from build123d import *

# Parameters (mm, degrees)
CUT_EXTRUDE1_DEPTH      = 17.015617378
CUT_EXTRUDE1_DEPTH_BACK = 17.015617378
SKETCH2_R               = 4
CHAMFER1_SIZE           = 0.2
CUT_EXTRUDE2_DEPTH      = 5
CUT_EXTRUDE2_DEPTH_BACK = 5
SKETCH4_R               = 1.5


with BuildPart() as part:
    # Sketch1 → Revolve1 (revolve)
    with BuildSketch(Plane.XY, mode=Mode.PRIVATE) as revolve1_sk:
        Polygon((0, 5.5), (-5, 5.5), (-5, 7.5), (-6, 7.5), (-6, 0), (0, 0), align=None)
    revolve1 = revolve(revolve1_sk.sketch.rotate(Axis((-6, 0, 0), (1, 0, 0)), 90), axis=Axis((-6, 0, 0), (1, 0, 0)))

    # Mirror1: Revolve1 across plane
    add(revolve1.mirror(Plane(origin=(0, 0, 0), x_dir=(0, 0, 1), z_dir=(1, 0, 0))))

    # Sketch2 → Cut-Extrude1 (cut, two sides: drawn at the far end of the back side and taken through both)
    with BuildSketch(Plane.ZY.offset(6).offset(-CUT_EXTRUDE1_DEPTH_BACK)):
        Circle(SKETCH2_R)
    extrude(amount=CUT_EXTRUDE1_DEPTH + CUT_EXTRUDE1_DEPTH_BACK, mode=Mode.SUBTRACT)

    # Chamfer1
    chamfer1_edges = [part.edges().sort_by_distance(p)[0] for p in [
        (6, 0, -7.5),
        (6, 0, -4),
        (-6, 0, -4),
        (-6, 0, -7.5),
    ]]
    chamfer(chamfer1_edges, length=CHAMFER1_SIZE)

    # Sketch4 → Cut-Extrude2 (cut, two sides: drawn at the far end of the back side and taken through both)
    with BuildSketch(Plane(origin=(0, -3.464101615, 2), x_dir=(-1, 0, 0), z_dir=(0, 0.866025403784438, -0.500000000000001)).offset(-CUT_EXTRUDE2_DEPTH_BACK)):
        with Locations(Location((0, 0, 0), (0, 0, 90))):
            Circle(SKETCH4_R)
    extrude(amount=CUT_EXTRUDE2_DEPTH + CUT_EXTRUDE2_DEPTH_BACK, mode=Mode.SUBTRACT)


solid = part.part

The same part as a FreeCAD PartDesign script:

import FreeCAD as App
import Part
import Sketcher
from FreeCAD import Vector
Q = App.Units.Quantity


def edges_at(feature, points):
    """Names of the edges that pass closest to the given points."""
    edges = feature.Shape.Edges
    near = lambda p: min(range(len(edges)), key=lambda i: edges[i].distToShape(Part.Vertex(*p))[0])
    return sorted({f"Edge{near(p) + 1}" for p in points})

doc = App.newDocument("Part")
body = doc.addObject("PartDesign::Body", "Body")

# Sketch on XY plane
sketch1 = doc.addObject("Sketcher::SketchObject", "Sketch")
body.addObject(sketch1)
sketch1.AttachmentSupport = (doc.XY_Plane, [""])
sketch1.MapMode = "FlatFace"
sketch1.addGeometry([
    Part.LineSegment(Vector(0, 5.5, 0), Vector(-5, 5.5, 0)),  # 0
    Part.LineSegment(Vector(-5, 5.5, 0), Vector(-5, 7.5, 0)),  # 1
    Part.LineSegment(Vector(-5, 7.5, 0), Vector(-6, 7.5, 0)),  # 2
    Part.LineSegment(Vector(-6, 7.5, 0), Vector(-6, 0, 0)),  # 3
    Part.LineSegment(Vector(-6, 0, 0), Vector(0, 0, 0)),  # 4
    Part.LineSegment(Vector(0, 0, 0), Vector(0, 5.5, 0)),  # 5
], False)
sketch1.addConstraint([
    Sketcher.Constraint("Coincident", 0, 2, 1, 1),
    Sketcher.Constraint("Coincident", 1, 2, 2, 1),
    Sketcher.Constraint("Coincident", 2, 2, 3, 1),
    Sketcher.Constraint("Coincident", 3, 2, 4, 1),
    Sketcher.Constraint("Coincident", 4, 2, 5, 1),
    Sketcher.Constraint("Coincident", 5, 2, 0, 1),
    Sketcher.Constraint("Horizontal", 0),
    Sketcher.Constraint("Vertical", 1),
    Sketcher.Constraint("Horizontal", 2),
    Sketcher.Constraint("Vertical", 3),
    Sketcher.Constraint("Horizontal", 4),
    Sketcher.Constraint("Vertical", 5),
    Sketcher.Constraint("Coincident", 4, 2, -1, 1),
    Sketcher.Constraint("DistanceX", 0, 2, 0, 1, Q("5 mm")),
    Sketcher.Constraint("DistanceX", 2, 2, 2, 1, Q("1 mm")),
    Sketcher.Constraint("DistanceY", 1, 1, 1, 2, Q("2 mm")),
    Sketcher.Constraint("DistanceY", 3, 2, 3, 1, Q("7.5 mm")),
])
revolution = doc.addObject("PartDesign::Revolution", "Revolution")
body.addObject(revolution)
revolution.Profile = sketch1
revolution.ReferenceAxis = (sketch1, ["H_Axis"])
revolution.Angle = 360
doc.recompute()

mirrored = doc.addObject("PartDesign::Mirrored", "Mirrored")
body.addObject(mirrored)
mirrored.Originals = [revolution]
mirrored.MirrorPlane = (doc.YZ_Plane, [""])
body.Tip = mirrored

# Sketch on YZ plane
sketch2 = doc.addObject("Sketcher::SketchObject", "Sketch001")
body.addObject(sketch2)
sketch2.AttachmentSupport = (doc.YZ_Plane, [""])
sketch2.MapMode = "FlatFace"
sketch2.AttachmentOffset = App.Placement(Vector(0, 0, -6), App.Rotation())
sketch2.addGeometry(Part.Circle(Vector(0, 0, 0), Vector(0, 0, 1), 4), False)
sketch2.addConstraint([
    Sketcher.Constraint("Coincident", 0, 3, -1, 1),
    Sketcher.Constraint("Diameter", 0, Q("8 mm")),
])
pocket1 = doc.addObject("PartDesign::Pocket", "Pocket")
body.addObject(pocket1)
pocket1.Profile = sketch2
pocket1.Type = "ThroughAll"
pocket1.Midplane = True
doc.recompute()

chamfer = doc.addObject("PartDesign::Chamfer", "Chamfer")
body.addObject(chamfer)
chamfer.Base = (pocket1, edges_at(pocket1, [
    (6, 0, -7.5),
    (6, 0, -4),
    (-6, 0, -4),
    (-6, 0, -7.5),
]))
chamfer.Size = 0.2

# Sketch on an angled plane
sketch3 = doc.addObject("Sketcher::SketchObject", "Sketch002")
body.addObject(sketch3)
sketch3.Placement = App.Placement(Vector(0, -3.464102, 2), App.Rotation(Vector(-1, 0, 0), Vector(0, 0.5, 0.866025404), Vector(0, 0.866025404, -0.5), "ZXY"))
sketch3.addGeometry(Part.Circle(Vector(0, 0, 0), Vector(0, 0, 1), 1.5), False)
sketch3.addConstraint([
    Sketcher.Constraint("Coincident", 0, 3, -1, 1),
    Sketcher.Constraint("Diameter", 0, Q("3 mm")),
])
pocket2 = doc.addObject("PartDesign::Pocket", "Pocket001")
body.addObject(pocket2)
pocket2.Profile = sketch3
pocket2.Type = "TwoLengths"
pocket2.Length = 5
pocket2.Length2 = 5
pocket2.Reversed = True

doc.recompute()
